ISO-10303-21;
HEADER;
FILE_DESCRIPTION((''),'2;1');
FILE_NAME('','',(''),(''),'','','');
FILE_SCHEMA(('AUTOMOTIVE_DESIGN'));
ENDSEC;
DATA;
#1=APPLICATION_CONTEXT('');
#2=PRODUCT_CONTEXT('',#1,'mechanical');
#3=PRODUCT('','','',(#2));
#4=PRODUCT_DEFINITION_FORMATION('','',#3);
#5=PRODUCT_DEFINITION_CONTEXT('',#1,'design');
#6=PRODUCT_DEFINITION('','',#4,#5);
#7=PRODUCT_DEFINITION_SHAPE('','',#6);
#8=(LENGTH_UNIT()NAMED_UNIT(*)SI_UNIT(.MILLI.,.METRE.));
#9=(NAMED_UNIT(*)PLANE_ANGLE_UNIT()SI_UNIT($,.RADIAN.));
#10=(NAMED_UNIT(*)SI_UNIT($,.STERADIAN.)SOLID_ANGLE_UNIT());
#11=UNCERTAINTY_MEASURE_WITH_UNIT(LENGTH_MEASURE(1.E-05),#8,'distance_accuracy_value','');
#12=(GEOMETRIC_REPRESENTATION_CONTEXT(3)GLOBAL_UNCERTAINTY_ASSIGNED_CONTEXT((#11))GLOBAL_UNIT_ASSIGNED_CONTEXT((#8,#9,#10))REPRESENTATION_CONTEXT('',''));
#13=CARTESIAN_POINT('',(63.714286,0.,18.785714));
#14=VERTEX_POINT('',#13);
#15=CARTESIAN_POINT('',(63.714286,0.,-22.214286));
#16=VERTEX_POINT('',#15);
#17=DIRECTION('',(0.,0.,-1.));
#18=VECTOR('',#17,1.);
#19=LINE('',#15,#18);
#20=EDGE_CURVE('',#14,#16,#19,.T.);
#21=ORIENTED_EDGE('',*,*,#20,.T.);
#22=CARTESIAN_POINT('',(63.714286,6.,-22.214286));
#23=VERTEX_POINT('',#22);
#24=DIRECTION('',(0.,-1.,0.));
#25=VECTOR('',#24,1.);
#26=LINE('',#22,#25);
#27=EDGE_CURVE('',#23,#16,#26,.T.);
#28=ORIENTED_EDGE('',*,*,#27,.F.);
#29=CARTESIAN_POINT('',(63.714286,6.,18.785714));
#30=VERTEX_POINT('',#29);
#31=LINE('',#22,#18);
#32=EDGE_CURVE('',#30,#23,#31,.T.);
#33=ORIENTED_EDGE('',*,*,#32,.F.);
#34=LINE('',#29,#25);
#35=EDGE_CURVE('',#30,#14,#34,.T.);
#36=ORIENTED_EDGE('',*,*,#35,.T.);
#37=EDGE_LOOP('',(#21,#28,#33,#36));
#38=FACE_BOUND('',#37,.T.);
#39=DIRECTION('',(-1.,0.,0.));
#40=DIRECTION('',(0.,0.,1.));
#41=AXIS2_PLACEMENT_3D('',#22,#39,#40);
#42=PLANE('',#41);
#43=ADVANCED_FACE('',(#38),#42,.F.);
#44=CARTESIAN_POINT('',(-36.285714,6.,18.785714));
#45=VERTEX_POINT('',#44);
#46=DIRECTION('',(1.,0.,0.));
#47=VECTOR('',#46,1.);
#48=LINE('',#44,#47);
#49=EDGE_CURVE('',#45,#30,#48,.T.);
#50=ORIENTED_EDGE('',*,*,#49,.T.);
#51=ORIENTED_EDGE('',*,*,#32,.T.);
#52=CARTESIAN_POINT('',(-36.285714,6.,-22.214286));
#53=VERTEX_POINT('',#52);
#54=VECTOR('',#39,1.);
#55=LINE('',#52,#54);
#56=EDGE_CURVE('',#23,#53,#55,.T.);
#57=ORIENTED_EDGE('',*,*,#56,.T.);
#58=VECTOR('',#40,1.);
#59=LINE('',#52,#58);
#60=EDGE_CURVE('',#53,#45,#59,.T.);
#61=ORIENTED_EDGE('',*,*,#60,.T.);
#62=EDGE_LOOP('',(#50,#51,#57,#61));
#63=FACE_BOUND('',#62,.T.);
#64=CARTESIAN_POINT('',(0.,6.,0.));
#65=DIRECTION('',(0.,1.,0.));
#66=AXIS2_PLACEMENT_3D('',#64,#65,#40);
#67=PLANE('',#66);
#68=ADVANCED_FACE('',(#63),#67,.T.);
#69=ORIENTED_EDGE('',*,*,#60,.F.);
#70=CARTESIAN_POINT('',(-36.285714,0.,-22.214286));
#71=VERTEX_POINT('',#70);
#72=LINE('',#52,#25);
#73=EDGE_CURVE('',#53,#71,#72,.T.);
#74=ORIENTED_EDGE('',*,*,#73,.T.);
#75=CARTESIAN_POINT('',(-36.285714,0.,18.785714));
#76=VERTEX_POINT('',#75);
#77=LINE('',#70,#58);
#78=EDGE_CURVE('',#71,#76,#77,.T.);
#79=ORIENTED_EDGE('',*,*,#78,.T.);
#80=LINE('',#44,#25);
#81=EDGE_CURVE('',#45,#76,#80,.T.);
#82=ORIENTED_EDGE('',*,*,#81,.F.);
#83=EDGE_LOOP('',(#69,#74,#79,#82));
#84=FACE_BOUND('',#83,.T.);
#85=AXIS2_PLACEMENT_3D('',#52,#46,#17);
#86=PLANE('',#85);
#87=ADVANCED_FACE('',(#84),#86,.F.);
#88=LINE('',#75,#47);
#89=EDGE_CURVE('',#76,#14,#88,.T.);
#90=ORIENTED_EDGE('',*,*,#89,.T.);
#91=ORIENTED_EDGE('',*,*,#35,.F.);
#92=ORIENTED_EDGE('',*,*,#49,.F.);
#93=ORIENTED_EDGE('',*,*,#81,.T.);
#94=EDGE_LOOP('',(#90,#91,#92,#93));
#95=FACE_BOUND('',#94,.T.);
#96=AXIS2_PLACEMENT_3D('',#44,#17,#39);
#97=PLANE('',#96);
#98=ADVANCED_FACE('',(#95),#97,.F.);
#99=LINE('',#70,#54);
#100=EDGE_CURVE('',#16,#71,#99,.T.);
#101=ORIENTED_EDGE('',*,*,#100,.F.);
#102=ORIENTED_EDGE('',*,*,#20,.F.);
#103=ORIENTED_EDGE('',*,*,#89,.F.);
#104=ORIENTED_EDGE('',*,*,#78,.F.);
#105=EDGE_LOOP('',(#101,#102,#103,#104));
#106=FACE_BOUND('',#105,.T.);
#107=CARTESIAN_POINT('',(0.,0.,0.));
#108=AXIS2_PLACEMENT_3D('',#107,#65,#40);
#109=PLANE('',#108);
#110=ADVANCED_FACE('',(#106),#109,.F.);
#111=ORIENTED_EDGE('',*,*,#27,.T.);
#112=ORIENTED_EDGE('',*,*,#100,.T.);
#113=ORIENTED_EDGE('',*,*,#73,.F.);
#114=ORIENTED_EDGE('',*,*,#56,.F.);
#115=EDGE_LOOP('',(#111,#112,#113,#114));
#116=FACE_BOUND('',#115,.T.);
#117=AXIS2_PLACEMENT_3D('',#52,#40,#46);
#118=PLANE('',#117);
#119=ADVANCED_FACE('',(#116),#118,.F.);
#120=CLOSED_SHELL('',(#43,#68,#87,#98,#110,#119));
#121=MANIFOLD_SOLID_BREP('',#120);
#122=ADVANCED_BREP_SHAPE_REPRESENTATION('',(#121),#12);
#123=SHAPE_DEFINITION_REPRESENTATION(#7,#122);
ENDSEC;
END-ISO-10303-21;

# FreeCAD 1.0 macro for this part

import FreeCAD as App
import Part
import Sketcher

doc = App.newDocument("Part")
body = doc.addObject("PartDesign::Body", "Body")

# Sketch on XZ plane
sketch1 = body.newObject("Sketcher::SketchObject", "Sketch")
sketch1.AttachmentSupport = (doc.getObject("XZ_Plane"), [""])
sketch1.MapMode = "FlatFace"
sketch1.addGeometry(Part.LineSegment(App.Vector(-36, -22, 0), App.Vector(-36, 19, 0)), False)
sketch1.addGeometry(Part.LineSegment(App.Vector(-36, 19, 0), App.Vector(64, 19, 0)), False)
sketch1.addGeometry(Part.LineSegment(App.Vector(64, 19, 0), App.Vector(64, -22, 0)), False)
sketch1.addGeometry(Part.LineSegment(App.Vector(64, -22, 0), App.Vector(-36, -22, 0)), False)
sketch1.addConstraint(Sketcher.Constraint("Coincident", 0, 2, 1, 1))
sketch1.addConstraint(Sketcher.Constraint("Coincident", 1, 2, 2, 1))
sketch1.addConstraint(Sketcher.Constraint("Coincident", 2, 2, 3, 1))
sketch1.addConstraint(Sketcher.Constraint("Coincident", 3, 2, 0, 1))
sketch1.addConstraint(Sketcher.Constraint("Vertical", 0))
sketch1.addConstraint(Sketcher.Constraint("Horizontal", 1))
sketch1.addConstraint(Sketcher.Constraint("Vertical", 2))
sketch1.addConstraint(Sketcher.Constraint("Horizontal", 3))
sketch1.addConstraint(Sketcher.Constraint("DistanceX", 1, 1, 1, 2, 100.0))
sketch1.addConstraint(Sketcher.Constraint("DistanceY", 0, 1, 0, 2, 41.0))
sketch1.addConstraint(Sketcher.Constraint("DistanceX", 0, 2, -1, 1, 36.285714))
sketch1.addConstraint(Sketcher.Constraint("DistanceY", -1, 1, 0, 2, 18.785714))
pad1 = body.newObject("PartDesign::Pad", "Pad")
pad1.Profile = sketch1
pad1.Length = 6
pad1.Reversed = True

doc.recompute()
